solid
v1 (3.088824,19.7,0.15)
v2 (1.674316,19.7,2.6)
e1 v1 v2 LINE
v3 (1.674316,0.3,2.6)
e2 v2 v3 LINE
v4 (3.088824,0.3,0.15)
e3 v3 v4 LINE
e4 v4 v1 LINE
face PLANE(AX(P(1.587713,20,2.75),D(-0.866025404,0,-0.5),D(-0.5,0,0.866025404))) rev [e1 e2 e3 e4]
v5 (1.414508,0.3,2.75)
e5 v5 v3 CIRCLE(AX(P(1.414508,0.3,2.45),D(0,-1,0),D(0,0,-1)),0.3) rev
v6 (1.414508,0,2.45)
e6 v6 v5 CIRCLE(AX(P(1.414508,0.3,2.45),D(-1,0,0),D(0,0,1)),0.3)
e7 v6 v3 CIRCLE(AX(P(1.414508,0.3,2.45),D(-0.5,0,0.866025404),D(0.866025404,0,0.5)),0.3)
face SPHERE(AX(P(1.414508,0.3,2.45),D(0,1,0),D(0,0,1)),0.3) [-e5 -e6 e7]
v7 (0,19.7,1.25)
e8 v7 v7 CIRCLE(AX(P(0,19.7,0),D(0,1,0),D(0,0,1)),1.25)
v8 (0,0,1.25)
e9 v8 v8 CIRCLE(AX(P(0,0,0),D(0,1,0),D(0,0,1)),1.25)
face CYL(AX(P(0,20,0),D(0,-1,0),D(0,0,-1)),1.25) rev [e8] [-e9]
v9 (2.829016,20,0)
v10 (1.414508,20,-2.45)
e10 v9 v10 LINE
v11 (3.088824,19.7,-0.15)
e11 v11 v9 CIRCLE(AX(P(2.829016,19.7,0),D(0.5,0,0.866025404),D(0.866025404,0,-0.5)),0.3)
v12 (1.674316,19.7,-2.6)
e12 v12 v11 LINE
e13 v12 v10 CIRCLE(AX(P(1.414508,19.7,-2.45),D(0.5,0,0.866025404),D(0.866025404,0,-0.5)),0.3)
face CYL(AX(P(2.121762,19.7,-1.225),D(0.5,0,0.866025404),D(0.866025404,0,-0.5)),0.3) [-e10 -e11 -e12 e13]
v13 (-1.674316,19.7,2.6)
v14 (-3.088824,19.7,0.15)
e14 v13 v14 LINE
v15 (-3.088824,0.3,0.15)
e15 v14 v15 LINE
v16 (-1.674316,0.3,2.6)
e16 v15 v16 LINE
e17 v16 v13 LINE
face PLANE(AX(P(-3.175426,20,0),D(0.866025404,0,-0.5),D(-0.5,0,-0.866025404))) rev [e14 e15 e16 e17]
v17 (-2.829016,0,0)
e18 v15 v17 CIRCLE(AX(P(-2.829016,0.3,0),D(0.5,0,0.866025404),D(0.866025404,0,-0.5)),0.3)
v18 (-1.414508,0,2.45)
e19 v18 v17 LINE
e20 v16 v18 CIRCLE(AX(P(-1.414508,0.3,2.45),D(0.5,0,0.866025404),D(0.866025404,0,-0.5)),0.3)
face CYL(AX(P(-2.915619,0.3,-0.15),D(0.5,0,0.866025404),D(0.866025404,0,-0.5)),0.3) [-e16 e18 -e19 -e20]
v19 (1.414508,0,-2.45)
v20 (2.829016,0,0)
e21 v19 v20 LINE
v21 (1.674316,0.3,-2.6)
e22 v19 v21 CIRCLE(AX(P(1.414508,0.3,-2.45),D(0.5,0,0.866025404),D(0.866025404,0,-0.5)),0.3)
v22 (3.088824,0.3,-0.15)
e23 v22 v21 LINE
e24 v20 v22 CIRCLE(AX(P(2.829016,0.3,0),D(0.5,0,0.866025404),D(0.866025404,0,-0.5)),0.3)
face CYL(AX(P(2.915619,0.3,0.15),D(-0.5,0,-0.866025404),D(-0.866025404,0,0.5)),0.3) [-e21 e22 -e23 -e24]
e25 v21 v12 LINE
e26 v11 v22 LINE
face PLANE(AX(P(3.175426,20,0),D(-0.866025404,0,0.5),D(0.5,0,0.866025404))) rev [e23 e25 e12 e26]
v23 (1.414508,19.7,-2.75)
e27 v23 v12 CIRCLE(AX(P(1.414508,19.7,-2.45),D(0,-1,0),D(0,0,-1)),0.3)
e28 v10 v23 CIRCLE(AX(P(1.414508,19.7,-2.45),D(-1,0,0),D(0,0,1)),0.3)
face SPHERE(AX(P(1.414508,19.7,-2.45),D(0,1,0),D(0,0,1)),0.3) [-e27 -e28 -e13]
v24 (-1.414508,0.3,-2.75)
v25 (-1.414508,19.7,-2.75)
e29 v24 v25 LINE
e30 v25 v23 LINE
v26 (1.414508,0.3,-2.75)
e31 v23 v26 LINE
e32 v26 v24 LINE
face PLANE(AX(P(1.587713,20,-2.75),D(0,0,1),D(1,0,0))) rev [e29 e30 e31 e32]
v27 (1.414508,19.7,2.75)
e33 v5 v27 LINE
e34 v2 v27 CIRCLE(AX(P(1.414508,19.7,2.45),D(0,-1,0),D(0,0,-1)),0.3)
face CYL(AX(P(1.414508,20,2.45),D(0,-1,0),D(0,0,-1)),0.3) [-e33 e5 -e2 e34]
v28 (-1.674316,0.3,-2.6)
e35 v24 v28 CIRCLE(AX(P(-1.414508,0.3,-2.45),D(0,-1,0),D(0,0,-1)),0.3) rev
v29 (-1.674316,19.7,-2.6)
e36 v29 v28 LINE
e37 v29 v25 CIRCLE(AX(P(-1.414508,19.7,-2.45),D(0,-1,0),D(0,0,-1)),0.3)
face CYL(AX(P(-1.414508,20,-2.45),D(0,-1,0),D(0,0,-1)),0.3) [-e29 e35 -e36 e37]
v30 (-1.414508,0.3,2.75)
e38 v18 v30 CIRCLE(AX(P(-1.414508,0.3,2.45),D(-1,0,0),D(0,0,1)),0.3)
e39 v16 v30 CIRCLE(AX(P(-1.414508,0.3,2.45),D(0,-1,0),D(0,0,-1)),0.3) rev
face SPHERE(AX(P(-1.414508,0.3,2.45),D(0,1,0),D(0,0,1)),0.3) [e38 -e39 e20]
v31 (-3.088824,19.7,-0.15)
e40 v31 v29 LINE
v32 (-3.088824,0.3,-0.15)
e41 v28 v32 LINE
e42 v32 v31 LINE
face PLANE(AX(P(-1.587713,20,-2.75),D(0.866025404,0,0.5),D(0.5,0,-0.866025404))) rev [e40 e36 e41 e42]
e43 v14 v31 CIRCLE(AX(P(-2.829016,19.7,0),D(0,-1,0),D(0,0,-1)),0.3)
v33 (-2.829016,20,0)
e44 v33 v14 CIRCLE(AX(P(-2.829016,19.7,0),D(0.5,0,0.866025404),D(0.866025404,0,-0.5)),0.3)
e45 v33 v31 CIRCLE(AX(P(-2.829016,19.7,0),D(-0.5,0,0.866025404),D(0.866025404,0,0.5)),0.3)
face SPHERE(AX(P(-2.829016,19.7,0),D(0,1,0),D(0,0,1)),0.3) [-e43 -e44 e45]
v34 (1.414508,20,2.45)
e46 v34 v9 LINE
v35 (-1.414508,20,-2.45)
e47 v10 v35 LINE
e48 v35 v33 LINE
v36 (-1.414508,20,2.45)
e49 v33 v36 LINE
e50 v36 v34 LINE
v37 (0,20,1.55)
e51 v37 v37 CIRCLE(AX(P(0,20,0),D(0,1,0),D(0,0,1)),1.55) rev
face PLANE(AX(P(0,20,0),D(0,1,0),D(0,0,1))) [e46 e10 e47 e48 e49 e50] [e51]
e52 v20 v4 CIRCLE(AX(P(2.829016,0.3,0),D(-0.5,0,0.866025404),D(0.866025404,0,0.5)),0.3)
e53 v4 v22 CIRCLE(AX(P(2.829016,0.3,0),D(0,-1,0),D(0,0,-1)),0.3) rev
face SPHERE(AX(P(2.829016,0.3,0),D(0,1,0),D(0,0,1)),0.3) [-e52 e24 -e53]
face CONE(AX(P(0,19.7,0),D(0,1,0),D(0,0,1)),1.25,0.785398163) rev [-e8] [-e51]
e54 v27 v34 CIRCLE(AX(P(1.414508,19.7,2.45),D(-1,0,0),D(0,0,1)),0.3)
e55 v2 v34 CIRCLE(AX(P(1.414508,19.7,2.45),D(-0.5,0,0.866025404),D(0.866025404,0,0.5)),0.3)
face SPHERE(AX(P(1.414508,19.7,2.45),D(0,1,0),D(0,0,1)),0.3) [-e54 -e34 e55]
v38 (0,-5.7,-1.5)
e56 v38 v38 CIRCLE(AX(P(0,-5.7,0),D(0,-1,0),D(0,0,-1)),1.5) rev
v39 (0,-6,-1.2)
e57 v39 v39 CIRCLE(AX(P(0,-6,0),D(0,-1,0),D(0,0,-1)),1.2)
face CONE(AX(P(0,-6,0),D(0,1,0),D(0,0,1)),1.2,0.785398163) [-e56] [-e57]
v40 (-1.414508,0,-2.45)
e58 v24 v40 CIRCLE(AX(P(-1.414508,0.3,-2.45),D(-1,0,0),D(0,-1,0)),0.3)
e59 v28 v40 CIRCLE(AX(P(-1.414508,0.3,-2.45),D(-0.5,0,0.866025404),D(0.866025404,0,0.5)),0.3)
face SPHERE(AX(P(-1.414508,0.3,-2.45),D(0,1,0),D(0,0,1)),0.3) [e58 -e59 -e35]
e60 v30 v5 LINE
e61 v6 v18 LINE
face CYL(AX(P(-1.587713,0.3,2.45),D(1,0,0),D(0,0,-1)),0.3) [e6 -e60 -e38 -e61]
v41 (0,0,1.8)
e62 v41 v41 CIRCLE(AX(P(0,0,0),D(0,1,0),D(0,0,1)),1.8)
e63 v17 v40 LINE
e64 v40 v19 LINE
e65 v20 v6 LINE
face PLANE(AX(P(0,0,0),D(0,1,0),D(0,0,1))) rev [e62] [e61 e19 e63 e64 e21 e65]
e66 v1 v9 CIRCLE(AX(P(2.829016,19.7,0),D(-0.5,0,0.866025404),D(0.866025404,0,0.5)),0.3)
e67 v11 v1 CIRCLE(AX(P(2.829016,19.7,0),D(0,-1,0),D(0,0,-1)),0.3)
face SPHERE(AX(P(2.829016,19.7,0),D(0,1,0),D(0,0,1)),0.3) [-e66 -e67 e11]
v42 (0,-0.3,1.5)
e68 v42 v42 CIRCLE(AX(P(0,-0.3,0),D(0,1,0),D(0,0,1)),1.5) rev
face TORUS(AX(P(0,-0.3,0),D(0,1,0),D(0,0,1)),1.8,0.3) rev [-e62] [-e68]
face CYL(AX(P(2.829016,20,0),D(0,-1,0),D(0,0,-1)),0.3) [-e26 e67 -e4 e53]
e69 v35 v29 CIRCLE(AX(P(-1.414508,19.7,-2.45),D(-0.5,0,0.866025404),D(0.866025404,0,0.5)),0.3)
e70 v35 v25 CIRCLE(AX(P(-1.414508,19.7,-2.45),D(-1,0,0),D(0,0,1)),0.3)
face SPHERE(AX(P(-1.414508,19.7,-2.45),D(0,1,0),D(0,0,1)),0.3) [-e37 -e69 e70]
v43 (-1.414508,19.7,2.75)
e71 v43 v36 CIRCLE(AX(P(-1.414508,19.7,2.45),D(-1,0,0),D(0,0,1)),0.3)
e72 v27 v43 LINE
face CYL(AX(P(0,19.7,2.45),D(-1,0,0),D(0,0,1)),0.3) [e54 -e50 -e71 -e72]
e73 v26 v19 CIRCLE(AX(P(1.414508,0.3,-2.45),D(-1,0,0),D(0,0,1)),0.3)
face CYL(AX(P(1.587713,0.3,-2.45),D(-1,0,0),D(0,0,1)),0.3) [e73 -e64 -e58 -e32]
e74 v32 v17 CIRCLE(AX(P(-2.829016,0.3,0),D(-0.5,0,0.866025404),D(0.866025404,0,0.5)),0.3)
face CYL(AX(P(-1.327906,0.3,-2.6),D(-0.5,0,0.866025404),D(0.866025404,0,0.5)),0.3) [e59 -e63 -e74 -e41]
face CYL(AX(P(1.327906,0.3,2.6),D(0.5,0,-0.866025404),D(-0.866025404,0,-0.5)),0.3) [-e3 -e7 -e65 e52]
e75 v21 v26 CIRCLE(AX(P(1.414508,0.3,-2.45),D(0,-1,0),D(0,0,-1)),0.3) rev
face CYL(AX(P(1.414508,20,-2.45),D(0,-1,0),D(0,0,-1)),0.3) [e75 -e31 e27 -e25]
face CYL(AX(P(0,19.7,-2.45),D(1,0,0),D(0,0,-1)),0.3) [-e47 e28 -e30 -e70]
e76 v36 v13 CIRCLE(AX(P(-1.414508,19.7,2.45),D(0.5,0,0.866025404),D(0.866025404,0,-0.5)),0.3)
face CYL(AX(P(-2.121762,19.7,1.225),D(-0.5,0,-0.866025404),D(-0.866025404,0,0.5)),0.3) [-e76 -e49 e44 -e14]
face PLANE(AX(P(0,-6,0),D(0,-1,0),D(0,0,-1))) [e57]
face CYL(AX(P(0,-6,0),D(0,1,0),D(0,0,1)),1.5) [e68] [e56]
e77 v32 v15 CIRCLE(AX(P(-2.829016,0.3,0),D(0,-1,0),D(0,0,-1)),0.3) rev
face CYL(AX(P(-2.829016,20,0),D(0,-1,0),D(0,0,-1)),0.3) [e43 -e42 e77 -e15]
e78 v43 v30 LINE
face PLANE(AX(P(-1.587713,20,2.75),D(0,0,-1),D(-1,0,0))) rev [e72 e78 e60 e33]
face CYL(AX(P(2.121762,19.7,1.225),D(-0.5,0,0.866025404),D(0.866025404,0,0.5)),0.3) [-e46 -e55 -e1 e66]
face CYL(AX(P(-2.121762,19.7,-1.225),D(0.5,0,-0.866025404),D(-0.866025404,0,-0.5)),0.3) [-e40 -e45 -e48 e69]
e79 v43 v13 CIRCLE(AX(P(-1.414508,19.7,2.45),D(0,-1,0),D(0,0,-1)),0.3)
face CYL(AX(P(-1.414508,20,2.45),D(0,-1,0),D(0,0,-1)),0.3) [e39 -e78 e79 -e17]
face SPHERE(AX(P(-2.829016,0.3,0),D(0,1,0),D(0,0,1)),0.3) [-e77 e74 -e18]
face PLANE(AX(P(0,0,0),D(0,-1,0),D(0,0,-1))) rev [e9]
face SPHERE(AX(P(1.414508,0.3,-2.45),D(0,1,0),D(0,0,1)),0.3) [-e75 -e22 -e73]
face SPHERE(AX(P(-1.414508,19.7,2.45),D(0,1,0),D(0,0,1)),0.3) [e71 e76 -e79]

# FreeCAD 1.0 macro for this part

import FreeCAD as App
import Part
import Sketcher

V = App.Vector
Q = App.Units.Quantity


def edges_at(feature, points):
    """Names of the edges that pass closest to the given points."""
    edges = feature.Shape.Edges
    near = lambda p: min(range(len(edges)), key=lambda i: edges[i].distToShape(Part.Vertex(*p))[0])
    return sorted({f"Edge{near(p) + 1}" for p in points})

doc = App.newDocument("Part")
body = doc.addObject("PartDesign::Body", "Body")

sketch1 = body.newObject("Sketcher::SketchObject", "Sketch")
sketch1.AttachmentSupport = (doc.getObject("XZ_Plane"), [""])
sketch1.MapMode = "FlatFace"
sketch1.addGeometry([
    Part.LineSegment(V(-1.6, -2.8, 0), V(-3.2, 0, 0)),
    Part.LineSegment(V(-3.2, 0, 0), V(-1.6, 2.8, 0)),
    Part.LineSegment(V(-1.6, 2.8, 0), V(1.6, 2.8, 0)),
    Part.LineSegment(V(1.6, 2.8, 0), V(3.2, 0, 0)),
    Part.LineSegment(V(3.2, 0, 0), V(1.6, -2.8, 0)),
    Part.LineSegment(V(1.6, -2.8, 0), V(-1.6, -2.8, 0)),
    Part.Circle(V(0, 0, 0), V(0, 0, 1), 1.2),
], False)
sketch1.addConstraint([
    Sketcher.Constraint("Coincident", 0, 2, 1, 1),
    Sketcher.Constraint("Coincident", 1, 2, 2, 1),
    Sketcher.Constraint("Coincident", 2, 2, 3, 1),
    Sketcher.Constraint("Coincident", 3, 2, 4, 1),
    Sketcher.Constraint("Coincident", 4, 2, 5, 1),
    Sketcher.Constraint("Coincident", 5, 2, 0, 1),
    Sketcher.Constraint("Horizontal", 2),
    Sketcher.Constraint("Horizontal", 5),
    Sketcher.Constraint("Coincident", 6, 3, -1, 1),
    Sketcher.Constraint("Symmetric", 0, 2, 3, 2, -1, 1),
    Sketcher.Constraint("Symmetric", 1, 2, 4, 2, -1, 1),
    Sketcher.Constraint("PointOnObject", 0, 2, -1),
    Sketcher.Constraint("Parallel", 0, 3),
    Sketcher.Constraint("Vertical", 2, 2, 4, 2),
    Sketcher.Constraint("Diameter", 6, 2.5),
    Sketcher.Constraint("Angle", 0, Q("120 deg")),
    Sketcher.Constraint("DistanceY", 4, 2, 2, 2, 5.5),
    Sketcher.Constraint("DistanceX", 2, 1, 2, 2, 3.175426),
])
pad1 = body.newObject("PartDesign::Pad", "Pad")
pad1.Profile = sketch1
pad1.Length = 20
pad1.Reversed = True
doc.recompute()

fillet = body.newObject("PartDesign::Fillet", "Fillet")
fillet.Base = (pad1, edges_at(pad1, [
    (1.588, 10, -2.75),
    (3.175, 10, 0),
    (1.588, 10, 2.75),
    (-1.588, 10, 2.75),
    (-3.175, 10, 0),
    (-1.588, 10, -2.75),
]))
fillet.Radius = 0.3
doc.recompute()

fillet2 = body.newObject("PartDesign::Fillet", "Fillet001")
fillet2.Base = (fillet, edges_at(fillet, [
    (0, 0, -2.75),
    (0, 20, -2.75),
    (2.382, 0, -1.375),
    (2.382, 0, 1.375),
    (0, 0, 2.75),
    (-2.382, 0, 1.375),
    (-2.382, 0, -1.375),
    (1.565, 0, 2.71),
    (-1.565, 0, 2.71),
    (-3.129, 0, 0),
    (-1.565, 0, -2.71),
    (3.129, 0, 0),
    (1.565, 0, -2.71),
    (2.382, 20, -1.375),
    (-2.382, 20, -1.375),
    (-2.382, 20, 1.375),
    (0, 20, 2.75),
    (2.382, 20, 1.375),
    (1.565, 20, 2.71),
    (-1.565, 20, 2.71),
    (-3.129, 20, 0),
    (-1.565, 20, -2.71),
    (3.129, 20, 0),
    (1.565, 20, -2.71),
]))
fillet2.Radius = 0.3

sketch2 = body.newObject("Sketcher::SketchObject", "Sketch001")
sketch2.AttachmentSupport = (doc.getObject("XZ_Plane"), [""])
sketch2.MapMode = "FlatFace"
sketch2.addGeometry(Part.Circle(V(0, 0, 0), V(0, 0, 1), 1.5), False)
sketch2.addConstraint([
    Sketcher.Constraint("Coincident", 0, 3, -1, 1),
    Sketcher.Constraint("Diameter", 0, 3.0),
])
pad2 = body.newObject("PartDesign::Pad", "Pad001")
pad2.Profile = sketch2
pad2.Length = 6
doc.recompute()

chamfer = body.newObject("PartDesign::Chamfer", "Chamfer")
chamfer.Base = (pad2, edges_at(pad2, [(0, -6, -1.5), (0, 20, -1.25)]))
chamfer.Size = 0.3
doc.recompute()

fillet3 = body.newObject("PartDesign::Fillet", "Fillet002")
fillet3.Base = (chamfer, edges_at(chamfer, [(0, 0, -1.5)]))
fillet3.Radius = 0.3

doc.recompute()
